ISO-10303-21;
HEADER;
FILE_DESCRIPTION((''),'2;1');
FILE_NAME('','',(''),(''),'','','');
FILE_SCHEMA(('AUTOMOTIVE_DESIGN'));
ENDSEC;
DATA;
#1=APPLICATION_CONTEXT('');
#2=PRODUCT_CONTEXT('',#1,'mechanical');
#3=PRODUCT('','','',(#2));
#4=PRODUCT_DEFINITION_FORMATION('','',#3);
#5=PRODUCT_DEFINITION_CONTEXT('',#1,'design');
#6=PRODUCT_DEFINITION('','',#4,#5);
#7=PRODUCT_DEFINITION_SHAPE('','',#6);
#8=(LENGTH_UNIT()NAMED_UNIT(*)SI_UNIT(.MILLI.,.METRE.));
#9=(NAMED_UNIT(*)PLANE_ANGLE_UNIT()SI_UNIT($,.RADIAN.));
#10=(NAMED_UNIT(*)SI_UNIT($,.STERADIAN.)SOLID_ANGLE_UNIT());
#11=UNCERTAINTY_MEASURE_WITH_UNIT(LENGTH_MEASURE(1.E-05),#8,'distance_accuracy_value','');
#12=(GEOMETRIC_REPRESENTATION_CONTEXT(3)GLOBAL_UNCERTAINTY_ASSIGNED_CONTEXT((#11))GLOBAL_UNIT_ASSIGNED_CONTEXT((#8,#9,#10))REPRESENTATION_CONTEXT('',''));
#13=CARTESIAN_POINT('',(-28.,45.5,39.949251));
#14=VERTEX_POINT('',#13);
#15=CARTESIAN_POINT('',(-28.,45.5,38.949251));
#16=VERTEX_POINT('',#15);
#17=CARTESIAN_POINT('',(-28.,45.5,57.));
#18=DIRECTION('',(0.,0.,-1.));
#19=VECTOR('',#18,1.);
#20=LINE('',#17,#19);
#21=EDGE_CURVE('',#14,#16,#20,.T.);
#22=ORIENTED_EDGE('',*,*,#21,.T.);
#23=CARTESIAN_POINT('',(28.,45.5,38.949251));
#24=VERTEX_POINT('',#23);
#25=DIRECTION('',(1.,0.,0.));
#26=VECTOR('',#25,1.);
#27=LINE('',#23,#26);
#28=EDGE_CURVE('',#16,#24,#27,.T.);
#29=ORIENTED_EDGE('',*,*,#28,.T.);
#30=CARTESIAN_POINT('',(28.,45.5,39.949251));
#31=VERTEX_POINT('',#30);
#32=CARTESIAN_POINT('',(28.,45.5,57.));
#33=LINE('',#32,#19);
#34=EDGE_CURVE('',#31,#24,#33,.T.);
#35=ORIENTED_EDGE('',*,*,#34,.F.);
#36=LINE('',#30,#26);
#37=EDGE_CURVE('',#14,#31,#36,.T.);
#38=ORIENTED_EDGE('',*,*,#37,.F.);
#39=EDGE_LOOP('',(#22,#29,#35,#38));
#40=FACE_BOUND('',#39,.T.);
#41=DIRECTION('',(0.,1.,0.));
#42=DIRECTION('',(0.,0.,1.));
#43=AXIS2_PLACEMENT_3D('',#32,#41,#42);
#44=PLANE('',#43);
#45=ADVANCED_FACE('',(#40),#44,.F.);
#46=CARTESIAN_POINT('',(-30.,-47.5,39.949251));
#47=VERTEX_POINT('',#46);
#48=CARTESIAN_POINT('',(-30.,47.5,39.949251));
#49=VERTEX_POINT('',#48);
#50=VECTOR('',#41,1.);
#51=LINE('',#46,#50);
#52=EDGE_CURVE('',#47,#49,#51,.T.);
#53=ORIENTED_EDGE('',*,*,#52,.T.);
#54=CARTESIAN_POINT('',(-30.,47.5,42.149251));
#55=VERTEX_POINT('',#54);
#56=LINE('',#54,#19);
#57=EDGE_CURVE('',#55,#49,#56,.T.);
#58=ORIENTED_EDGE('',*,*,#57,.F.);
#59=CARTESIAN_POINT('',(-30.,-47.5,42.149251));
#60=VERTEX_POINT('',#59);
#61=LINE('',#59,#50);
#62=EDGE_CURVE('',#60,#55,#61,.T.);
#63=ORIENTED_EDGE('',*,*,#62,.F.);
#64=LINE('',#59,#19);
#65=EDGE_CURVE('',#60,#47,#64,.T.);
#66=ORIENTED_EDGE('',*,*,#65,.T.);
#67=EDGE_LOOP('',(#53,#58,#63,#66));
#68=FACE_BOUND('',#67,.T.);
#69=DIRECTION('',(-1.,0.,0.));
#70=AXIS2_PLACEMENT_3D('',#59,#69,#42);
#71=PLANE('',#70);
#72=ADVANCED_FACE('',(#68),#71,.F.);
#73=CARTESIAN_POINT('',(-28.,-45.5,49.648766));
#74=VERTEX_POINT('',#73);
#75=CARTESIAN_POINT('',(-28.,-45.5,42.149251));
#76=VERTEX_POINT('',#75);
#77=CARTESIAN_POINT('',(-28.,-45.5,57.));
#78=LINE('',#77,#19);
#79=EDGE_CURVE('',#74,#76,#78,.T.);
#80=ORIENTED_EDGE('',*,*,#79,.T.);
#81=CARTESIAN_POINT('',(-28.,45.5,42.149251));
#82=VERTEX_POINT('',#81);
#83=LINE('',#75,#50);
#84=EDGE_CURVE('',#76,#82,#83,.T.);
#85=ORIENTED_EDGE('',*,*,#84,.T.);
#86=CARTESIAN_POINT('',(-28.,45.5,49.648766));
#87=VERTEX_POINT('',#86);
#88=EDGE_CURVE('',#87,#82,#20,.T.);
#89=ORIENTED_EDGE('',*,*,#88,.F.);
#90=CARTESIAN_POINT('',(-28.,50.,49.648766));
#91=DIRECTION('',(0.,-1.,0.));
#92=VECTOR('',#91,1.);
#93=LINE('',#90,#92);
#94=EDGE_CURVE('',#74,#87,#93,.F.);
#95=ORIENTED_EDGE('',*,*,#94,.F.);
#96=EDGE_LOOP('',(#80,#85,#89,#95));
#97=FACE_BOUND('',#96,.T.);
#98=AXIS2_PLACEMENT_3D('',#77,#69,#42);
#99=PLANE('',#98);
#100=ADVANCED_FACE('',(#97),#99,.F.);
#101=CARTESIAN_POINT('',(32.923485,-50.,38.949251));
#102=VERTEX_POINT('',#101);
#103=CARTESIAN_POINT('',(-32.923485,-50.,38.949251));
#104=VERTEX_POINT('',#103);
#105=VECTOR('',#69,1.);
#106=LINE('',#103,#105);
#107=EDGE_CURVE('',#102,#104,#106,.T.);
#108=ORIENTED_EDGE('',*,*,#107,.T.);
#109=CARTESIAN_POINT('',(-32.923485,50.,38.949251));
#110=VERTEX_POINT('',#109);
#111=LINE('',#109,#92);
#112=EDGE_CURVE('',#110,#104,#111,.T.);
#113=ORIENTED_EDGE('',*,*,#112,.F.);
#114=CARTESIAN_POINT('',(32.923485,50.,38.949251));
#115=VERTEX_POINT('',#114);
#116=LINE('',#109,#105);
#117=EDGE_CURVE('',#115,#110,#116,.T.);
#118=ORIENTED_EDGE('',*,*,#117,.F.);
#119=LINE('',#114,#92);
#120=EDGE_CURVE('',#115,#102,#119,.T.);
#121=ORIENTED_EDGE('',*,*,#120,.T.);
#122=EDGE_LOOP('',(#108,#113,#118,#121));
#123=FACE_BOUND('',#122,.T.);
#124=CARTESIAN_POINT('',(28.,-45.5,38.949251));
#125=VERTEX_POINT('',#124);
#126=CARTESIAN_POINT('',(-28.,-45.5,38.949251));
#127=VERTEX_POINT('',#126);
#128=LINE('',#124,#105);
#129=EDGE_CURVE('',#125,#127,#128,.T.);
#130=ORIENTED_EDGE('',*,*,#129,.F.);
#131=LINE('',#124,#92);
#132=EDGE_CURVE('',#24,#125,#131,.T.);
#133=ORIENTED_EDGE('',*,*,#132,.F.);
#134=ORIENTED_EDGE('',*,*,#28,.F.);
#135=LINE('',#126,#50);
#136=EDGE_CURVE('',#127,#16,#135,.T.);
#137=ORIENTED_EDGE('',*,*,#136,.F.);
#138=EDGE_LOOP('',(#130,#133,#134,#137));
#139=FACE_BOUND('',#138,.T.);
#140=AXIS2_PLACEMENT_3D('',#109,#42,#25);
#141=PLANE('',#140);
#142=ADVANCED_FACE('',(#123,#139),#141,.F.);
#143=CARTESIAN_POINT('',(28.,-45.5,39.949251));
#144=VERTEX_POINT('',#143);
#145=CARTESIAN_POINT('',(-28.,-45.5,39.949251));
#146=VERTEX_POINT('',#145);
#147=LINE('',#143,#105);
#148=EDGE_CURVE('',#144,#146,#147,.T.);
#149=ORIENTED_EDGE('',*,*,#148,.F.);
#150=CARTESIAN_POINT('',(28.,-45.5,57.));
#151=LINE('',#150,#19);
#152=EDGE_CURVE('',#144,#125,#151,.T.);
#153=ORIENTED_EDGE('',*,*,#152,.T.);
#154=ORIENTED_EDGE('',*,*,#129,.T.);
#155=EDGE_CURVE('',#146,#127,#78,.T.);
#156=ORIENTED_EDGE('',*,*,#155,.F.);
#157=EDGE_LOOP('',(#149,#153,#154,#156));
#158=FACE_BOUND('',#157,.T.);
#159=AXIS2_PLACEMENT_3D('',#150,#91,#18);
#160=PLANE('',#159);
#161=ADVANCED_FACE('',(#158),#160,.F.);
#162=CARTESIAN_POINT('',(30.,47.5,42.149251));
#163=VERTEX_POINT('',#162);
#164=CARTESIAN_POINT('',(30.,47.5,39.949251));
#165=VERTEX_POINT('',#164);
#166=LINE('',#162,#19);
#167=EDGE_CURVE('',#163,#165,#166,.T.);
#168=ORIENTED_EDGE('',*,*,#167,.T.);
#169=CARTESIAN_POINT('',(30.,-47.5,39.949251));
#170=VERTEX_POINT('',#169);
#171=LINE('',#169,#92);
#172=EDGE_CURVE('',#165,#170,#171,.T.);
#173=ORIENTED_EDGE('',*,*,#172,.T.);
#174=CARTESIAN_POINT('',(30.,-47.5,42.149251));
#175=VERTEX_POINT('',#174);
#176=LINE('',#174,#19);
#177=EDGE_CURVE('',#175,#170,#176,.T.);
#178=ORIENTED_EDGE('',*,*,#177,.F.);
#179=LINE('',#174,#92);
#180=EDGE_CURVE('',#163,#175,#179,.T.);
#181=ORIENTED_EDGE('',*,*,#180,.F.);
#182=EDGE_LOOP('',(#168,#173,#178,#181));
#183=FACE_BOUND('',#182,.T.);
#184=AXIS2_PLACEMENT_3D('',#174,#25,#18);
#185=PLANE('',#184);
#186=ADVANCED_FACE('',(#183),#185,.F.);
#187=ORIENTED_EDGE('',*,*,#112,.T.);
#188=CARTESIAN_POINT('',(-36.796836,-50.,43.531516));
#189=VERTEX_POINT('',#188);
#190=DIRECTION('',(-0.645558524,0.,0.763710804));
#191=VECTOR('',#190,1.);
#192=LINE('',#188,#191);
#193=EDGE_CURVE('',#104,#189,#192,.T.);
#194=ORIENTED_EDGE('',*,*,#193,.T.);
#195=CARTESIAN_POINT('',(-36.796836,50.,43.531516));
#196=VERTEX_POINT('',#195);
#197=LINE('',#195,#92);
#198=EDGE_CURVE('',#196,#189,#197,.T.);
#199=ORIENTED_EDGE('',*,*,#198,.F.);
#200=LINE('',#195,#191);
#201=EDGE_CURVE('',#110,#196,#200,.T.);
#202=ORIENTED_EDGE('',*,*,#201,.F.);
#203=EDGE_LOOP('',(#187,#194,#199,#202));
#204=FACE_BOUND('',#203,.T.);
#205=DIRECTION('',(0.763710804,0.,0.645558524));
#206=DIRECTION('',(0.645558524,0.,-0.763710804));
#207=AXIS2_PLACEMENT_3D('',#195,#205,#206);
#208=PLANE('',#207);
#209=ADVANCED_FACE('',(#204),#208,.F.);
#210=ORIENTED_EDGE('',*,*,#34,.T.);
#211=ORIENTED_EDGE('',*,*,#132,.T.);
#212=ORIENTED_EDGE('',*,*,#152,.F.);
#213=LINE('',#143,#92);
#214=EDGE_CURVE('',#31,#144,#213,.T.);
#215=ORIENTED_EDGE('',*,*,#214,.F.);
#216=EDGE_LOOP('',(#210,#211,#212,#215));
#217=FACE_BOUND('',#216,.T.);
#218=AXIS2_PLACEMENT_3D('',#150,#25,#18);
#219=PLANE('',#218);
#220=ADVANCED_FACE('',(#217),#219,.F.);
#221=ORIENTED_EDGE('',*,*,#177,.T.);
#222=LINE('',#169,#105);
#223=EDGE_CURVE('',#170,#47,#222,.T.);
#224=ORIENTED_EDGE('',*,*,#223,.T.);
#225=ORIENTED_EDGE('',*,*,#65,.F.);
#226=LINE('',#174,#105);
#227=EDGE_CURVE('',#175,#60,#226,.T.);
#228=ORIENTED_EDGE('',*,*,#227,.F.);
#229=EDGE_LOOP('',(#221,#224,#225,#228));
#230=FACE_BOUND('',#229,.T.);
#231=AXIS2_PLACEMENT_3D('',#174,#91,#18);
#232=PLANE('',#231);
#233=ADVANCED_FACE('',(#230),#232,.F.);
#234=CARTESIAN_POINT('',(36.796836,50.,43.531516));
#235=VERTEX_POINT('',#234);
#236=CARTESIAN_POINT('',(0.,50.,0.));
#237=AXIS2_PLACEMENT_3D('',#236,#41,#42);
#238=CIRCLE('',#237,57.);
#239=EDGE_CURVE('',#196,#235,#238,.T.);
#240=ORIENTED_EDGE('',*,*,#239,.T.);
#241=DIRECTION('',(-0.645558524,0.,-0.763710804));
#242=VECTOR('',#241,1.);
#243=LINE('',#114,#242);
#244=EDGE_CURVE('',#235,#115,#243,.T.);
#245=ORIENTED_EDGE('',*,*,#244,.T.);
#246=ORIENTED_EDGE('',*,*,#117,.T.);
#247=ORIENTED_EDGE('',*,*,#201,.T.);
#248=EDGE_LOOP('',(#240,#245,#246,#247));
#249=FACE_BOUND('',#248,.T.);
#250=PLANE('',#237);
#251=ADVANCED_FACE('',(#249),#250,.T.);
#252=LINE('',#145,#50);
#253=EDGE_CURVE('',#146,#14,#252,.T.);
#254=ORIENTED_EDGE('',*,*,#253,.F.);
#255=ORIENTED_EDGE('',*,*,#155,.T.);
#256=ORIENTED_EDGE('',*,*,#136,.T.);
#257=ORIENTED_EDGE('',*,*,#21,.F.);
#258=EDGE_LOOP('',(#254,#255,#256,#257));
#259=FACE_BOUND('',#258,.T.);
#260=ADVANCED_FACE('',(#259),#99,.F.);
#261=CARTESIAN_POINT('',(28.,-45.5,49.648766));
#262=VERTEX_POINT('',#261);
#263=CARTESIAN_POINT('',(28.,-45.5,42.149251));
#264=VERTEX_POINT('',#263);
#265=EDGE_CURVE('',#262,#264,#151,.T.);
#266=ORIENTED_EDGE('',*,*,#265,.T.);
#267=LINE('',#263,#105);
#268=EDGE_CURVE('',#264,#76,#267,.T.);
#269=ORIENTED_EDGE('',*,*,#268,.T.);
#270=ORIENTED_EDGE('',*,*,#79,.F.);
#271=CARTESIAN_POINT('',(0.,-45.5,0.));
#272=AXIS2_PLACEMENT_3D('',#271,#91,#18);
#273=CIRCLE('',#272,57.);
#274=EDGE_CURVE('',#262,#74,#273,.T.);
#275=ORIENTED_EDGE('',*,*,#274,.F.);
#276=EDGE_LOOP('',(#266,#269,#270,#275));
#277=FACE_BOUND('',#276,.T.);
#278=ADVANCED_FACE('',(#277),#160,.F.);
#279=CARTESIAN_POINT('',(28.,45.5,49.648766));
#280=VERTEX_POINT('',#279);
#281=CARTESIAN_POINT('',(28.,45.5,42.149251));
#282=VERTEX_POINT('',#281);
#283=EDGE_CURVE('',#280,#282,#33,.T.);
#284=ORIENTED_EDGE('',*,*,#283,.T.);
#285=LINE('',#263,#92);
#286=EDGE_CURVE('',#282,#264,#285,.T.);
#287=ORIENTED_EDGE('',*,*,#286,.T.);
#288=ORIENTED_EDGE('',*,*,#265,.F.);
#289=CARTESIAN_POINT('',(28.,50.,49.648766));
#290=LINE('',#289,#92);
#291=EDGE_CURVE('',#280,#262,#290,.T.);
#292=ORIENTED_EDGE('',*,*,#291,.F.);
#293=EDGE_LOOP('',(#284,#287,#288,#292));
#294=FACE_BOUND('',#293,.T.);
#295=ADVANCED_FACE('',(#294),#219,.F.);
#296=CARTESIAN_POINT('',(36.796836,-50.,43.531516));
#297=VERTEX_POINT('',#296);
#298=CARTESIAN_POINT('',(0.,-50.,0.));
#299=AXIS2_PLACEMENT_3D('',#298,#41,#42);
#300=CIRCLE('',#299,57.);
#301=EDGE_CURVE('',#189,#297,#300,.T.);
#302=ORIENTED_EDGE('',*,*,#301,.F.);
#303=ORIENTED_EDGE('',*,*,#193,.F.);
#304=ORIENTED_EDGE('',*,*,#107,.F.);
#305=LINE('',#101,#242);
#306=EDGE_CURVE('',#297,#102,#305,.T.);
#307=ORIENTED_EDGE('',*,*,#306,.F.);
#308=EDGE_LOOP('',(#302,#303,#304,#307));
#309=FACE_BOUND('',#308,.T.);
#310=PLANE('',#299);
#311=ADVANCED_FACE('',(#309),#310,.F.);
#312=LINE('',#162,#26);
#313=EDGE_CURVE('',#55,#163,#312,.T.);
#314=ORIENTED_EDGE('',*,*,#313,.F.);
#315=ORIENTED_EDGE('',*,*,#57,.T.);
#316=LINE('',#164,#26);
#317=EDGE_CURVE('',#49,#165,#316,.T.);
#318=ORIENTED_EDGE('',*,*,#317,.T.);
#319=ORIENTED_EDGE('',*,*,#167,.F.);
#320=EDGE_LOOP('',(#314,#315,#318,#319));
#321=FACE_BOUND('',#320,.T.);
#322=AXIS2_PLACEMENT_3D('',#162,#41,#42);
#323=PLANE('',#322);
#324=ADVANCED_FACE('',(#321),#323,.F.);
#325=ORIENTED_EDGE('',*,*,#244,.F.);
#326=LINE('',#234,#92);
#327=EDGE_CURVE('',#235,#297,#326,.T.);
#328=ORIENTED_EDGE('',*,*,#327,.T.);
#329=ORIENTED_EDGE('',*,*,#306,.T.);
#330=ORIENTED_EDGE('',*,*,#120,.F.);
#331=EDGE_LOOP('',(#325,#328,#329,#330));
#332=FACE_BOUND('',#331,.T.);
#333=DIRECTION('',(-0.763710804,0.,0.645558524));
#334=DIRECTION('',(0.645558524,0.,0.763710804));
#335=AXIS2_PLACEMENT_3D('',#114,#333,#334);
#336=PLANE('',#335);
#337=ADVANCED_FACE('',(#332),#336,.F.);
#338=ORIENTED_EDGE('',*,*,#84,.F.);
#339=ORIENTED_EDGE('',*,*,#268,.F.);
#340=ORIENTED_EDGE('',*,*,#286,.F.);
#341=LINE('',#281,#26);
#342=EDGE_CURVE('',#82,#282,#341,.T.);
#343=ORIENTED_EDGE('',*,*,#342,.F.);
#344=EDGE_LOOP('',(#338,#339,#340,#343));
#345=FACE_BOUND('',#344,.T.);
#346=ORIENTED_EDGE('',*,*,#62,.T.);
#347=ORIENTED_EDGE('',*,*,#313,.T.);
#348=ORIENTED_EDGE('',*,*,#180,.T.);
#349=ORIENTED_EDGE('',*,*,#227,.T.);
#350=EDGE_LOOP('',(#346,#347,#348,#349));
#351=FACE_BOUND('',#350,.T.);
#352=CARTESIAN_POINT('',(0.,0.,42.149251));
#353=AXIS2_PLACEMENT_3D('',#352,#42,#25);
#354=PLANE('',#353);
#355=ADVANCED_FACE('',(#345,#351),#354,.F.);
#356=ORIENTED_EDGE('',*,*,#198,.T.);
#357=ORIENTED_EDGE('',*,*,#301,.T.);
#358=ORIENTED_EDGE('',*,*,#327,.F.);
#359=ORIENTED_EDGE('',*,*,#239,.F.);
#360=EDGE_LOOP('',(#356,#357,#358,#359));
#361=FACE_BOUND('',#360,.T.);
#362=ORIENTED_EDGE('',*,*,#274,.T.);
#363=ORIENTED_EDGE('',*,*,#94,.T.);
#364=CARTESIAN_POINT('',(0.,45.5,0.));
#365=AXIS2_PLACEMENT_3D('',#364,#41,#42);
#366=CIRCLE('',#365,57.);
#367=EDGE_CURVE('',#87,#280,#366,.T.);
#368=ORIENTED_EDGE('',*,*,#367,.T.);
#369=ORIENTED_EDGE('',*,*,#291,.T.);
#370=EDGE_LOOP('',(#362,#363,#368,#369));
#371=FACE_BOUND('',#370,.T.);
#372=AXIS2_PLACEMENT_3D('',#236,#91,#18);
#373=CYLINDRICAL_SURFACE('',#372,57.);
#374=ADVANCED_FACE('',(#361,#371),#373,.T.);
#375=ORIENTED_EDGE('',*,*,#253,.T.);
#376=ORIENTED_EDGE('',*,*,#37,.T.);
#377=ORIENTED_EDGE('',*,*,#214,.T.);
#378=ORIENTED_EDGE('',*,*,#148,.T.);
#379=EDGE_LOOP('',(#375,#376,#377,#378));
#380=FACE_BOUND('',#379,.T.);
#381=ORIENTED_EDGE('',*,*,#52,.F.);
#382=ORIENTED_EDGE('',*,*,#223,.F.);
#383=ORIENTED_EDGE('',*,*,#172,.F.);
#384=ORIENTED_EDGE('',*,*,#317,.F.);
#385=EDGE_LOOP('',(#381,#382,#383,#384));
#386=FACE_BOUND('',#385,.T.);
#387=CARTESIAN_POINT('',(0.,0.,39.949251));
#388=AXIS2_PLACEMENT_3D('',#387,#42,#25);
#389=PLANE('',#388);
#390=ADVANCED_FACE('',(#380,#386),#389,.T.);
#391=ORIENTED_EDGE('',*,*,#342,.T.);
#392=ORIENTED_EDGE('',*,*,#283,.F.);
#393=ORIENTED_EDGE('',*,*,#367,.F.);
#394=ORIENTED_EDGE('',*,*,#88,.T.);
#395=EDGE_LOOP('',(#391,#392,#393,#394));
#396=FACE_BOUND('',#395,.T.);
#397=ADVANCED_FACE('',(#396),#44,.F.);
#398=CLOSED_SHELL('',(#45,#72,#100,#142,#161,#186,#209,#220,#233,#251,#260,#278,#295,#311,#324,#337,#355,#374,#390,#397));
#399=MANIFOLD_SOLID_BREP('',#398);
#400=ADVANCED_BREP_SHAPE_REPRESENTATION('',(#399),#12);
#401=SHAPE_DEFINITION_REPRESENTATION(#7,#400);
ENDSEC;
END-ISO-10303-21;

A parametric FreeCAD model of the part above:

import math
import FreeCAD as App
import Part
import Sketcher
from FreeCAD import Vector
Q = App.Units.Quantity

doc = App.newDocument("Part")
body = doc.addObject("PartDesign::Body", "Body")

sketch1 = body.newObject("Sketcher::SketchObject", "Sketch")
sketch1.AttachmentSupport = (doc.getObject("XZ_Plane"), [""])
sketch1.MapMode = "FlatFace"
sketch1.addGeometry(Part.LineSegment(Vector(-33, 39, 0), Vector(-37, 44, 0)), False)
sketch1.addGeometry(Part.ArcOfCircle(Part.Circle(Vector(0, 0, 0), Vector(0, 0, 1), 57), math.radians(50), math.radians(130)), False)
sketch1.addGeometry(Part.LineSegment(Vector(37, 44, 0), Vector(33, 39, 0)), False)
sketch1.addGeometry(Part.LineSegment(Vector(33, 39, 0), Vector(-33, 39, 0)), False)
sketch1.addConstraint(Sketcher.Constraint("Coincident", 0, 2, 1, 2))
sketch1.addConstraint(Sketcher.Constraint("Coincident", 1, 1, 2, 1))
sketch1.addConstraint(Sketcher.Constraint("Coincident", 2, 2, 3, 1))
sketch1.addConstraint(Sketcher.Constraint("Coincident", 3, 2, 0, 1))
sketch1.addConstraint(Sketcher.Constraint("Horizontal", 3))
sketch1.addConstraint(Sketcher.Constraint("Coincident", 1, 3, -1, 1))
sketch1.addConstraint(Sketcher.Constraint("Horizontal", 0, 2, 1, 1))
sketch1.addConstraint(Sketcher.Constraint("Equal", 0, 2))
sketch1.addConstraint(Sketcher.Constraint("Radius", 1, Q("57 mm")))
sketch1.addConstraint(Sketcher.Constraint("Distance", 0, Q("6 mm")))
sketch1.addConstraint(Sketcher.Constraint("DistanceX", 3, 2, 3, 1, Q("65.846969 mm")))
sketch1.addConstraint(Sketcher.Constraint("DistanceX", 0, 2, 1, 1, Q("73.593672 mm")))
pad1 = body.newObject("PartDesign::Pad", "Pad")
pad1.Profile = sketch1
pad1.Length = 100
pad1.Midplane = True

sketch2 = body.newObject("Sketcher::SketchObject", "Sketch001")
sketch2.AttachmentSupport = (doc.getObject("XY_Plane"), [""])
sketch2.MapMode = "FlatFace"
sketch2.AttachmentOffset = App.Placement(Vector(0, 0, 38.949251), App.Rotation())
sketch2.addGeometry(Part.LineSegment(Vector(28, 46, 0), Vector(28, -46, 0)), False)
sketch2.addGeometry(Part.LineSegment(Vector(28, -46, 0), Vector(-28, -46, 0)), False)
sketch2.addGeometry(Part.LineSegment(Vector(-28, -46, 0), Vector(-28, 46, 0)), False)
sketch2.addGeometry(Part.LineSegment(Vector(-28, 46, 0), Vector(28, 46, 0)), False)
sketch2.addConstraint(Sketcher.Constraint("Coincident", 0, 2, 1, 1))
sketch2.addConstraint(Sketcher.Constraint("Coincident", 1, 2, 2, 1))
sketch2.addConstraint(Sketcher.Constraint("Coincident", 2, 2, 3, 1))
sketch2.addConstraint(Sketcher.Constraint("Coincident", 3, 2, 0, 1))
sketch2.addConstraint(Sketcher.Constraint("Vertical", 0))
sketch2.addConstraint(Sketcher.Constraint("Horizontal", 1))
sketch2.addConstraint(Sketcher.Constraint("Vertical", 2))
sketch2.addConstraint(Sketcher.Constraint("Horizontal", 3))
sketch2.addConstraint(Sketcher.Constraint("Symmetric", 0, 2, 2, 2, -1, 1))
sketch2.addConstraint(Sketcher.Constraint("DistanceX", 1, 2, 1, 1, Q("56 mm")))
sketch2.addConstraint(Sketcher.Constraint("DistanceY", 0, 2, 0, 1, Q("91 mm")))
pocket1 = body.newObject("PartDesign::Pocket", "Pocket")
pocket1.Profile = sketch2
pocket1.Type = "ThroughAll"
pocket1.Reversed = True

sketch3 = body.newObject("Sketcher::SketchObject", "Sketch002")
sketch3.AttachmentSupport = (doc.getObject("XY_Plane"), [""])
sketch3.MapMode = "FlatFace"
sketch3.AttachmentOffset = App.Placement(Vector(0, 0, 39.949251), App.Rotation())
sketch3.addGeometry(Part.LineSegment(Vector(30, 48, 0), Vector(30, -48, 0)), False)
sketch3.addGeometry(Part.LineSegment(Vector(30, -48, 0), Vector(-30, -48, 0)), False)
sketch3.addGeometry(Part.LineSegment(Vector(-30, -48, 0), Vector(-30, 48, 0)), False)
sketch3.addGeometry(Part.LineSegment(Vector(-30, 48, 0), Vector(30, 48, 0)), False)
sketch3.addConstraint(Sketcher.Constraint("Coincident", 0, 2, 1, 1))
sketch3.addConstraint(Sketcher.Constraint("Coincident", 1, 2, 2, 1))
sketch3.addConstraint(Sketcher.Constraint("Coincident", 2, 2, 3, 1))
sketch3.addConstraint(Sketcher.Constraint("Coincident", 3, 2, 0, 1))
sketch3.addConstraint(Sketcher.Constraint("Vertical", 0))
sketch3.addConstraint(Sketcher.Constraint("Horizontal", 1))
sketch3.addConstraint(Sketcher.Constraint("Vertical", 2))
sketch3.addConstraint(Sketcher.Constraint("Horizontal", 3))
sketch3.addConstraint(Sketcher.Constraint("Symmetric", 0, 2, 2, 2, -1, 1))
sketch3.addConstraint(Sketcher.Constraint("DistanceX", 1, 2, 1, 1, Q("60 mm")))
sketch3.addConstraint(Sketcher.Constraint("DistanceY", 0, 2, 0, 1, Q("95 mm")))
pocket2 = body.newObject("PartDesign::Pocket", "Pocket001")
pocket2.Profile = sketch3
pocket2.Length = 2.2
pocket2.Reversed = True

doc.recompute()
